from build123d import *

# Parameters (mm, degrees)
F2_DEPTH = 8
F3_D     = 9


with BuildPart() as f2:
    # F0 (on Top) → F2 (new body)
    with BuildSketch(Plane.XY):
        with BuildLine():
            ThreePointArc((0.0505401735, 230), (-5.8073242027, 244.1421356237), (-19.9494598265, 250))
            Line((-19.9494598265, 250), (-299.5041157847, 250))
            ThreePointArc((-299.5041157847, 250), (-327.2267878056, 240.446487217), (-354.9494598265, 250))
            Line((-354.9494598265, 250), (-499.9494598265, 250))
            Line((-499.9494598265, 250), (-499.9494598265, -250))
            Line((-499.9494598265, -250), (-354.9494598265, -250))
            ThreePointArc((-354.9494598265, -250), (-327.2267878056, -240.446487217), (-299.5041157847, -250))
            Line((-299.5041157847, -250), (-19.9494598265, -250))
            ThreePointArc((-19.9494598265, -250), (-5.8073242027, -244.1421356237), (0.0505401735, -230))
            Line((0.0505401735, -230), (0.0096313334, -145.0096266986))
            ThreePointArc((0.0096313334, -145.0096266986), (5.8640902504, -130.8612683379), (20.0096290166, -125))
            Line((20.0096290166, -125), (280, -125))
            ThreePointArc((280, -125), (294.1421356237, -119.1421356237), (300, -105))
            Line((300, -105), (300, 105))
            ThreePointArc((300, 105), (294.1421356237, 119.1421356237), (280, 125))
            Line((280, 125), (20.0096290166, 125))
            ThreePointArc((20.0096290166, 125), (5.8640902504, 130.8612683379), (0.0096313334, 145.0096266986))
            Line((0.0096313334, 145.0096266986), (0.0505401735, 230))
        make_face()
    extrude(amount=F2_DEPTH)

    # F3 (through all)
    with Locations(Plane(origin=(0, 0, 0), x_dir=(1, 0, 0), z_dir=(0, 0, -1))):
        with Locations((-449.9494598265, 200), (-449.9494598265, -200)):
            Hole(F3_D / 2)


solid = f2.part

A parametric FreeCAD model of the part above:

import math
import FreeCAD as App
import Part
import Sketcher

V = App.Vector

doc = App.newDocument("Part")
body = doc.addObject("PartDesign::Body", "Body")

# Sketch on XY plane
sketch1 = body.newObject("Sketcher::SketchObject", "Sketch")
sketch1.AttachmentSupport = (doc.getObject("XY_Plane"), [""])
sketch1.MapMode = "FlatFace"
sketch1.addGeometry([
    Part.ArcOfCircle(Part.Circle(V(-19.94946, 230, 0), V(0, 0, 1), 20), math.radians(0), math.radians(90)),  # 0
    Part.LineSegment(V(-19.94946, 250, 0), V(-299.504116, 250, 0)),  # 1
    Part.ArcOfCircle(Part.Circle(V(-327.226788, 285.446487, 0), V(0, 0, 1), 45), math.radians(-128.028937), math.radians(-51.971063)),  # 2
    Part.LineSegment(V(-354.94946, 250, 0), V(-499.94946, 250, 0)),  # 3
    Part.LineSegment(V(-499.94946, 250, 0), V(-499.94946, -250, 0)),  # 4
    Part.LineSegment(V(-499.94946, -250, 0), V(-354.94946, -250, 0)),  # 5
    Part.ArcOfCircle(Part.Circle(V(-327.226788, -285.446487, 0), V(0, 0, 1), 45), math.radians(51.971063), math.radians(128.028937)),  # 6
    Part.LineSegment(V(-299.504116, -250, 0), V(-19.94946, -250, 0)),  # 7
    Part.ArcOfCircle(Part.Circle(V(-19.94946, -230, 0), V(0, 0, 1), 20), math.radians(-90), math.radians(0)),  # 8
    Part.LineSegment(V(0.05054, -230, 0), V(0.009631, -145.009627, 0)),  # 9
    Part.ArcOfCircle(Part.Circle(V(20.009629, -145, 0), V(0, 0, 1), 20), math.radians(90), math.radians(180.027578)),  # 10
    Part.LineSegment(V(20.009629, -125, 0), V(280, -125, 0)),  # 11
    Part.ArcOfCircle(Part.Circle(V(280, -105, 0), V(0, 0, 1), 20), math.radians(-90), math.radians(0)),  # 12
    Part.LineSegment(V(300, -105, 0), V(300, 105, 0)),  # 13
    Part.ArcOfCircle(Part.Circle(V(280, 105, 0), V(0, 0, 1), 20), math.radians(0), math.radians(90)),  # 14
    Part.LineSegment(V(280, 125, 0), V(20.009629, 125, 0)),  # 15
    Part.ArcOfCircle(Part.Circle(V(20.009629, 145, 0), V(0, 0, 1), 20), math.radians(179.972422), math.radians(270)),  # 16
    Part.LineSegment(V(0.009631, 145.009627, 0), V(0.05054, 230, 0)),  # 17
], False)
sketch1.addConstraint([
    Sketcher.Constraint("Tangent", 0, 2, 1, 1),
    Sketcher.Constraint("Coincident", 1, 2, 2, 2),
    Sketcher.Constraint("Coincident", 2, 1, 3, 1),
    Sketcher.Constraint("Coincident", 3, 2, 4, 1),
    Sketcher.Constraint("Coincident", 4, 2, 5, 1),
    Sketcher.Constraint("Coincident", 5, 2, 6, 2),
    Sketcher.Constraint("Coincident", 6, 1, 7, 1),
    Sketcher.Constraint("Tangent", 7, 2, 8, 1),
    Sketcher.Constraint("Coincident", 8, 2, 9, 1),
    Sketcher.Constraint("Tangent", 9, 2, 10, 2),
    Sketcher.Constraint("Tangent", 10, 1, 11, 1),
    Sketcher.Constraint("Tangent", 11, 2, 12, 1),
    Sketcher.Constraint("Tangent", 12, 2, 13, 1),
    Sketcher.Constraint("Tangent", 13, 2, 14, 1),
    Sketcher.Constraint("Tangent", 14, 2, 15, 1),
    Sketcher.Constraint("Tangent", 15, 2, 16, 2),
    Sketcher.Constraint("Tangent", 16, 1, 17, 1),
    Sketcher.Constraint("Coincident", 17, 2, 0, 1),
    Sketcher.Constraint("Horizontal", 1),
    Sketcher.Constraint("Horizontal", 3),
    Sketcher.Constraint("Vertical", 4),
    Sketcher.Constraint("Horizontal", 5),
    Sketcher.Constraint("Horizontal", 7),
    Sketcher.Constraint("Horizontal", 11),
    Sketcher.Constraint("Vertical", 13),
    Sketcher.Constraint("Horizontal", 15),
    Sketcher.Constraint("Equal", 2, 6),
    Sketcher.Constraint("Equal", 0, 8),
    Sketcher.Constraint("Equal", 8, 10),
    Sketcher.Constraint("Equal", 10, 12),
    Sketcher.Constraint("Equal", 12, 14),
    Sketcher.Constraint("Equal", 14, 16),
    Sketcher.Constraint("Symmetric", 2, 3, 6, 3, -1),
    Sketcher.Constraint("Symmetric", 0, 3, 8, 3, -1),
    Sketcher.Constraint("Symmetric", 10, 3, 16, 3, -1),
    Sketcher.Constraint("Horizontal", 1, 2, 2, 1),
    Sketcher.Constraint("Horizontal", 5, 2, 6, 1),
    Sketcher.Constraint("Horizontal", 0, 3, 17, 2),
    Sketcher.Constraint("Equal", 9, 17),
    Sketcher.Constraint("Radius", 0, 20.0),
    Sketcher.Constraint("Radius", 2, 45.0),
    Sketcher.Constraint("DistanceX", 3, 2, 3, 1, 145.0),
    Sketcher.Constraint("DistanceY", 4, 2, 4, 1, 500.0),
    Sketcher.Constraint("DistanceY", 13, 1, 13, 2, 210.0),
    Sketcher.Constraint("DistanceX", -1, 1, 12, 3, 280.0),
    Sketcher.Constraint("DistanceX", 2, 1, 0, 2, 335.0),
    Sketcher.Constraint("DistanceX", 11, 1, 11, 2, 259.990371),
    Sketcher.Constraint("DistanceX", 1, 2, 1, 1, 279.554656),
    Sketcher.Constraint("DistanceX", 0, 3, -1, 1, 19.94946),
])
pad1 = body.newObject("PartDesign::Pad", "Pad")
pad1.Profile = sketch1
pad1.Length = 8

# Sketch on XY plane
sketch2 = body.newObject("Sketcher::SketchObject", "Sketch001")
sketch2.AttachmentSupport = (doc.getObject("XY_Plane"), [""])
sketch2.MapMode = "FlatFace"
sketch2.addGeometry([
    Part.Circle(V(-449.94946, -200, 0), V(0, 0, 1), 4.5),
    Part.Circle(V(-449.94946, 200, 0), V(0, 0, 1), 4.5),
], False)
sketch2.addConstraint([
    Sketcher.Constraint("Equal", 0, 1),
    Sketcher.Constraint("Symmetric", 0, 3, 1, 3, -1),
    Sketcher.Constraint("Diameter", 0, 9.0),
    Sketcher.Constraint("DistanceY", 0, 3, -1, 1, 200.0),
    Sketcher.Constraint("DistanceX", 0, 3, -1, 1, 449.94946),
])
doc.recompute()
hole = body.newObject("PartDesign::Hole", "Hole")
hole.Profile = sketch2
hole.ThreadType = "None"
hole.Diameter = 9
hole.DepthType = "ThroughAll"
hole.Reversed = True

doc.recompute()
